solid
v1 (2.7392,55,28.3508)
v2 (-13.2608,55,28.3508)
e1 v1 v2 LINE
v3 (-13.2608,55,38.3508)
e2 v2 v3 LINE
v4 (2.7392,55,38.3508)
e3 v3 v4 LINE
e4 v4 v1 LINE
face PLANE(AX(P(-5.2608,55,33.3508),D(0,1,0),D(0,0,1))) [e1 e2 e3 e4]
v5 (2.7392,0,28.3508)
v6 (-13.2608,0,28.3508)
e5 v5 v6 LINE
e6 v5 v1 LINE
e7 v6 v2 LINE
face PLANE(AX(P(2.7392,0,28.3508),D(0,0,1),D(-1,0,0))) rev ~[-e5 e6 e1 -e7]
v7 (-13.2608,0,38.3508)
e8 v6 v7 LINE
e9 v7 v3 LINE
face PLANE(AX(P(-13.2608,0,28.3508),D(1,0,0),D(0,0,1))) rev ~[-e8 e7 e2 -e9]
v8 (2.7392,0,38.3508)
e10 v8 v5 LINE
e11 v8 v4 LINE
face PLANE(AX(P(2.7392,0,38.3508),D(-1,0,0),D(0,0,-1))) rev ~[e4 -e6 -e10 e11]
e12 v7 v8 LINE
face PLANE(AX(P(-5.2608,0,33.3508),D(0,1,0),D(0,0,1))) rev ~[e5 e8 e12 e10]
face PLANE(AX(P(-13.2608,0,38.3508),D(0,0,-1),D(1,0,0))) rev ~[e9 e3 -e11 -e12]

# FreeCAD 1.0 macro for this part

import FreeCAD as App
import Part
import Sketcher
from FreeCAD import Vector
Q = App.Units.Quantity

doc = App.newDocument("Part")
body = doc.addObject("PartDesign::Body", "Body")

# Sketch on XZ plane
sketch1 = body.newObject("Sketcher::SketchObject", "Sketch")
sketch1.AttachmentSupport = (doc.getObject("XZ_Plane"), [""])
sketch1.MapMode = "FlatFace"
sketch1.addGeometry([
    Part.LineSegment(Vector(-13, 28, 0), Vector(3, 28, 0)),
    Part.LineSegment(Vector(3, 28, 0), Vector(3, 38, 0)),
    Part.LineSegment(Vector(3, 38, 0), Vector(-13, 38, 0)),
    Part.LineSegment(Vector(-13, 38, 0), Vector(-13, 28, 0)),
], False)
sketch1.addConstraint([
    Sketcher.Constraint("Coincident", 0, 2, 1, 1),
    Sketcher.Constraint("Coincident", 1, 2, 2, 1),
    Sketcher.Constraint("Coincident", 2, 2, 3, 1),
    Sketcher.Constraint("Coincident", 3, 2, 0, 1),
    Sketcher.Constraint("Horizontal", 0),
    Sketcher.Constraint("Vertical", 1),
    Sketcher.Constraint("Horizontal", 2),
    Sketcher.Constraint("Vertical", 3),
    Sketcher.Constraint("DistanceX", 0, 1, 0, 2, Q("16 mm")),
    Sketcher.Constraint("DistanceY", 1, 1, 1, 2, Q("10 mm")),
    Sketcher.Constraint("DistanceX", -1, 1, 0, 2, Q("2.7392 mm")),
    Sketcher.Constraint("DistanceY", -1, 1, 0, 2, Q("28.3508 mm")),
])
pad1 = body.newObject("PartDesign::Pad", "Pad")
pad1.Profile = sketch1
pad1.Length = 55
pad1.Reversed = True

doc.recompute()
